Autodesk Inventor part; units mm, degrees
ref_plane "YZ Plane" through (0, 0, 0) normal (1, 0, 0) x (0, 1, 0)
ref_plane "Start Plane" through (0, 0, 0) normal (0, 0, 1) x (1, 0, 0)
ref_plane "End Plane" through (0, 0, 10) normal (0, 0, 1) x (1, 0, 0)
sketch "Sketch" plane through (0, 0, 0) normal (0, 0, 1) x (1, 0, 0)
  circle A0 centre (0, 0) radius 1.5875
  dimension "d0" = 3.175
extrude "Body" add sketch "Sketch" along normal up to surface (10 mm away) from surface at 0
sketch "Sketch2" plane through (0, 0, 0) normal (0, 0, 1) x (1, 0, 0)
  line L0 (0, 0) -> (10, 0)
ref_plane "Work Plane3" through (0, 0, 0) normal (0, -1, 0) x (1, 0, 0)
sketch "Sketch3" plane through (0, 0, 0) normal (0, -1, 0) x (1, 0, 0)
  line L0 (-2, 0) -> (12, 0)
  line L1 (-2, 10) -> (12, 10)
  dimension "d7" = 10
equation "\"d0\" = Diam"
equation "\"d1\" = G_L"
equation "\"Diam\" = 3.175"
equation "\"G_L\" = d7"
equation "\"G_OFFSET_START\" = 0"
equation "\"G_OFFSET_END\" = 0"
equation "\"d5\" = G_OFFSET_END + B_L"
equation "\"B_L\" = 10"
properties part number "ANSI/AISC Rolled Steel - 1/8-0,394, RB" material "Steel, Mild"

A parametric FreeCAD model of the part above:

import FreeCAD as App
import Part
import Sketcher
Q = App.Units.Quantity

doc = App.newDocument("Part")
params = doc.addObject("Spreadsheet::Sheet", "Params")
for row, (alias, value) in enumerate([
    ("sketch1_diameter", "0.125 in"),
    ("pad1_length", "0.3937008 in"),
], start=1):
    params.set(f"A{row}", alias)
    params.set(f"B{row}", "=" + value)
    params.setAlias(f"B{row}", alias)

body = doc.addObject("PartDesign::Body", "Body")

# Sketch on XY plane
sketch1 = doc.addObject("Sketcher::SketchObject", "Sketch")
body.addObject(sketch1)
sketch1.AttachmentSupport = (doc.XY_Plane, [""])
sketch1.MapMode = "FlatFace"
sketch1.addGeometry(Part.Circle(App.Vector(0, 0, 0), App.Vector(0, 0, 1), 1.6), False)
sketch1.addConstraint(Sketcher.Constraint("Coincident", 0, 3, -1, 1))
sketch1.addConstraint(Sketcher.Constraint("Diameter", 0, Q("0.125 in")))
sketch1.setExpression("Constraints[1]", "Params.sketch1_diameter")
pad1 = doc.addObject("PartDesign::Pad", "Pad")
body.addObject(pad1)
pad1.Profile = sketch1
pad1.setExpression("Length", "Params.pad1_length")

doc.recompute()
